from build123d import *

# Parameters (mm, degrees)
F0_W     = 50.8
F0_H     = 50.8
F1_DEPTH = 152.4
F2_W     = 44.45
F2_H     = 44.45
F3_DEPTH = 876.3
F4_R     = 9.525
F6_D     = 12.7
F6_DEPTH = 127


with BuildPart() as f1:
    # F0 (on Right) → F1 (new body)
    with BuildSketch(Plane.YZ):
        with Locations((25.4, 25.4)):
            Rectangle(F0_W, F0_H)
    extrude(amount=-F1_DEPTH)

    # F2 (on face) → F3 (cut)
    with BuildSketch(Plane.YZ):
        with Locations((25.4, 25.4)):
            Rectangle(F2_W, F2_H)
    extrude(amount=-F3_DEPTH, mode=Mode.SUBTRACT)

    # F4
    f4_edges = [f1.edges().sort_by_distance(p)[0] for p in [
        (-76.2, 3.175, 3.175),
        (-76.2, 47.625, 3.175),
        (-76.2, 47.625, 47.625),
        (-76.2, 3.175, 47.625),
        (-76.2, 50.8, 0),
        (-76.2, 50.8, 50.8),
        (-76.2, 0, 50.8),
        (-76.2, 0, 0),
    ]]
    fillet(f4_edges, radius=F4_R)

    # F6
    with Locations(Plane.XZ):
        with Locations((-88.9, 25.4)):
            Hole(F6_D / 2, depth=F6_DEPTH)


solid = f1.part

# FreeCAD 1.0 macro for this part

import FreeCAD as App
import Part
import Sketcher
Q = App.Units.Quantity


def edges_at(feature, points):
    """Names of the edges that pass closest to the given points."""
    edges = feature.Shape.Edges
    near = lambda p: min(range(len(edges)), key=lambda i: edges[i].distToShape(Part.Vertex(*p))[0])
    return sorted({f"Edge{near(p) + 1}" for p in points})

doc = App.newDocument("Part")
body = doc.addObject("PartDesign::Body", "Body")

# Sketch on YZ plane
sketch1 = body.newObject("Sketcher::SketchObject", "Sketch")
sketch1.AttachmentSupport = (doc.getObject("YZ_Plane"), [""])
sketch1.MapMode = "FlatFace"
sketch1.addGeometry([
    Part.LineSegment(App.Vector(0, 51, 0), App.Vector(0, 0, 0)),
    Part.LineSegment(App.Vector(0, 0, 0), App.Vector(51, 0, 0)),
    Part.LineSegment(App.Vector(51, 0, 0), App.Vector(51, 51, 0)),
    Part.LineSegment(App.Vector(51, 51, 0), App.Vector(0, 51, 0)),
], False)
sketch1.addConstraint([
    Sketcher.Constraint("Coincident", 0, 2, 1, 1),
    Sketcher.Constraint("Coincident", 1, 2, 2, 1),
    Sketcher.Constraint("Coincident", 2, 2, 3, 1),
    Sketcher.Constraint("Coincident", 3, 2, 0, 1),
    Sketcher.Constraint("Vertical", 0),
    Sketcher.Constraint("Horizontal", 1),
    Sketcher.Constraint("Vertical", 2),
    Sketcher.Constraint("Horizontal", 3),
    Sketcher.Constraint("Coincident", 0, 2, -1, 1),
    Sketcher.Constraint("Equal", 3, 0),
    Sketcher.Constraint("DistanceX", 1, 1, 1, 2, Q("2 in")),
])
pad1 = body.newObject("PartDesign::Pad", "Pad")
pad1.Profile = sketch1
pad1.Length = Q("6 in")
pad1.Reversed = True

# Sketch on YZ plane
sketch2 = body.newObject("Sketcher::SketchObject", "Sketch001")
sketch2.AttachmentSupport = (doc.getObject("YZ_Plane"), [""])
sketch2.MapMode = "FlatFace"
sketch2.addGeometry([
    Part.LineSegment(App.Vector(3, 48, 0), App.Vector(3, 3, 0)),
    Part.LineSegment(App.Vector(3, 3, 0), App.Vector(48, 3, 0)),
    Part.LineSegment(App.Vector(48, 3, 0), App.Vector(48, 48, 0)),
    Part.LineSegment(App.Vector(48, 48, 0), App.Vector(3, 48, 0)),
], False)
sketch2.addConstraint([
    Sketcher.Constraint("Coincident", 0, 2, 1, 1),
    Sketcher.Constraint("Coincident", 1, 2, 2, 1),
    Sketcher.Constraint("Coincident", 2, 2, 3, 1),
    Sketcher.Constraint("Coincident", 3, 2, 0, 1),
    Sketcher.Constraint("Vertical", 0),
    Sketcher.Constraint("Horizontal", 1),
    Sketcher.Constraint("Vertical", 2),
    Sketcher.Constraint("Horizontal", 3),
    Sketcher.Constraint("Equal", 3, 0),
    Sketcher.Constraint("DistanceX", 1, 1, 1, 2, Q("1.75 in")),
    Sketcher.Constraint("DistanceX", -1, 1, 0, 2, Q("0.125 in")),
    Sketcher.Constraint("DistanceY", -1, 1, 0, 2, Q("0.125 in")),
])
pocket1 = body.newObject("PartDesign::Pocket", "Pocket")
pocket1.Profile = sketch2
pocket1.Length = Q("34.5 in")
doc.recompute()

fillet = body.newObject("PartDesign::Fillet", "Fillet")
fillet.Base = (pocket1, edges_at(pocket1, [
    (-76.2, 3.175, 3.175),
    (-76.2, 47.625, 3.175),
    (-76.2, 47.625, 47.625),
    (-76.2, 3.175, 47.625),
    (-76.2, 50.8, 0),
    (-76.2, 50.8, 50.8),
    (-76.2, 0, 50.8),
    (-76.2, 0, 0),
]))
fillet.Radius = Q("0.375 in")

# Sketch on XZ plane
sketch3 = body.newObject("Sketcher::SketchObject", "Sketch002")
sketch3.AttachmentSupport = (doc.getObject("XZ_Plane"), [""])
sketch3.MapMode = "FlatFace"
sketch3.addGeometry(Part.Circle(App.Vector(-89, 25, 0), App.Vector(0, 0, 1), 6), False)
sketch3.addConstraint([
    Sketcher.Constraint("Diameter", 0, Q("0.5 in")),
    Sketcher.Constraint("DistanceY", -1, 1, 0, 3, Q("1 in")),
    Sketcher.Constraint("DistanceX", 0, 3, -1, 1, Q("3.5 in")),
])
doc.recompute()
hole = body.newObject("PartDesign::Hole", "Hole")
hole.Profile = sketch3
hole.ThreadType = "None"
hole.Diameter = Q("0.5 in")
hole.DepthType = "Dimension"
hole.Depth = Q("5 in")
hole.DrillPoint = "Flat"

doc.recompute()
